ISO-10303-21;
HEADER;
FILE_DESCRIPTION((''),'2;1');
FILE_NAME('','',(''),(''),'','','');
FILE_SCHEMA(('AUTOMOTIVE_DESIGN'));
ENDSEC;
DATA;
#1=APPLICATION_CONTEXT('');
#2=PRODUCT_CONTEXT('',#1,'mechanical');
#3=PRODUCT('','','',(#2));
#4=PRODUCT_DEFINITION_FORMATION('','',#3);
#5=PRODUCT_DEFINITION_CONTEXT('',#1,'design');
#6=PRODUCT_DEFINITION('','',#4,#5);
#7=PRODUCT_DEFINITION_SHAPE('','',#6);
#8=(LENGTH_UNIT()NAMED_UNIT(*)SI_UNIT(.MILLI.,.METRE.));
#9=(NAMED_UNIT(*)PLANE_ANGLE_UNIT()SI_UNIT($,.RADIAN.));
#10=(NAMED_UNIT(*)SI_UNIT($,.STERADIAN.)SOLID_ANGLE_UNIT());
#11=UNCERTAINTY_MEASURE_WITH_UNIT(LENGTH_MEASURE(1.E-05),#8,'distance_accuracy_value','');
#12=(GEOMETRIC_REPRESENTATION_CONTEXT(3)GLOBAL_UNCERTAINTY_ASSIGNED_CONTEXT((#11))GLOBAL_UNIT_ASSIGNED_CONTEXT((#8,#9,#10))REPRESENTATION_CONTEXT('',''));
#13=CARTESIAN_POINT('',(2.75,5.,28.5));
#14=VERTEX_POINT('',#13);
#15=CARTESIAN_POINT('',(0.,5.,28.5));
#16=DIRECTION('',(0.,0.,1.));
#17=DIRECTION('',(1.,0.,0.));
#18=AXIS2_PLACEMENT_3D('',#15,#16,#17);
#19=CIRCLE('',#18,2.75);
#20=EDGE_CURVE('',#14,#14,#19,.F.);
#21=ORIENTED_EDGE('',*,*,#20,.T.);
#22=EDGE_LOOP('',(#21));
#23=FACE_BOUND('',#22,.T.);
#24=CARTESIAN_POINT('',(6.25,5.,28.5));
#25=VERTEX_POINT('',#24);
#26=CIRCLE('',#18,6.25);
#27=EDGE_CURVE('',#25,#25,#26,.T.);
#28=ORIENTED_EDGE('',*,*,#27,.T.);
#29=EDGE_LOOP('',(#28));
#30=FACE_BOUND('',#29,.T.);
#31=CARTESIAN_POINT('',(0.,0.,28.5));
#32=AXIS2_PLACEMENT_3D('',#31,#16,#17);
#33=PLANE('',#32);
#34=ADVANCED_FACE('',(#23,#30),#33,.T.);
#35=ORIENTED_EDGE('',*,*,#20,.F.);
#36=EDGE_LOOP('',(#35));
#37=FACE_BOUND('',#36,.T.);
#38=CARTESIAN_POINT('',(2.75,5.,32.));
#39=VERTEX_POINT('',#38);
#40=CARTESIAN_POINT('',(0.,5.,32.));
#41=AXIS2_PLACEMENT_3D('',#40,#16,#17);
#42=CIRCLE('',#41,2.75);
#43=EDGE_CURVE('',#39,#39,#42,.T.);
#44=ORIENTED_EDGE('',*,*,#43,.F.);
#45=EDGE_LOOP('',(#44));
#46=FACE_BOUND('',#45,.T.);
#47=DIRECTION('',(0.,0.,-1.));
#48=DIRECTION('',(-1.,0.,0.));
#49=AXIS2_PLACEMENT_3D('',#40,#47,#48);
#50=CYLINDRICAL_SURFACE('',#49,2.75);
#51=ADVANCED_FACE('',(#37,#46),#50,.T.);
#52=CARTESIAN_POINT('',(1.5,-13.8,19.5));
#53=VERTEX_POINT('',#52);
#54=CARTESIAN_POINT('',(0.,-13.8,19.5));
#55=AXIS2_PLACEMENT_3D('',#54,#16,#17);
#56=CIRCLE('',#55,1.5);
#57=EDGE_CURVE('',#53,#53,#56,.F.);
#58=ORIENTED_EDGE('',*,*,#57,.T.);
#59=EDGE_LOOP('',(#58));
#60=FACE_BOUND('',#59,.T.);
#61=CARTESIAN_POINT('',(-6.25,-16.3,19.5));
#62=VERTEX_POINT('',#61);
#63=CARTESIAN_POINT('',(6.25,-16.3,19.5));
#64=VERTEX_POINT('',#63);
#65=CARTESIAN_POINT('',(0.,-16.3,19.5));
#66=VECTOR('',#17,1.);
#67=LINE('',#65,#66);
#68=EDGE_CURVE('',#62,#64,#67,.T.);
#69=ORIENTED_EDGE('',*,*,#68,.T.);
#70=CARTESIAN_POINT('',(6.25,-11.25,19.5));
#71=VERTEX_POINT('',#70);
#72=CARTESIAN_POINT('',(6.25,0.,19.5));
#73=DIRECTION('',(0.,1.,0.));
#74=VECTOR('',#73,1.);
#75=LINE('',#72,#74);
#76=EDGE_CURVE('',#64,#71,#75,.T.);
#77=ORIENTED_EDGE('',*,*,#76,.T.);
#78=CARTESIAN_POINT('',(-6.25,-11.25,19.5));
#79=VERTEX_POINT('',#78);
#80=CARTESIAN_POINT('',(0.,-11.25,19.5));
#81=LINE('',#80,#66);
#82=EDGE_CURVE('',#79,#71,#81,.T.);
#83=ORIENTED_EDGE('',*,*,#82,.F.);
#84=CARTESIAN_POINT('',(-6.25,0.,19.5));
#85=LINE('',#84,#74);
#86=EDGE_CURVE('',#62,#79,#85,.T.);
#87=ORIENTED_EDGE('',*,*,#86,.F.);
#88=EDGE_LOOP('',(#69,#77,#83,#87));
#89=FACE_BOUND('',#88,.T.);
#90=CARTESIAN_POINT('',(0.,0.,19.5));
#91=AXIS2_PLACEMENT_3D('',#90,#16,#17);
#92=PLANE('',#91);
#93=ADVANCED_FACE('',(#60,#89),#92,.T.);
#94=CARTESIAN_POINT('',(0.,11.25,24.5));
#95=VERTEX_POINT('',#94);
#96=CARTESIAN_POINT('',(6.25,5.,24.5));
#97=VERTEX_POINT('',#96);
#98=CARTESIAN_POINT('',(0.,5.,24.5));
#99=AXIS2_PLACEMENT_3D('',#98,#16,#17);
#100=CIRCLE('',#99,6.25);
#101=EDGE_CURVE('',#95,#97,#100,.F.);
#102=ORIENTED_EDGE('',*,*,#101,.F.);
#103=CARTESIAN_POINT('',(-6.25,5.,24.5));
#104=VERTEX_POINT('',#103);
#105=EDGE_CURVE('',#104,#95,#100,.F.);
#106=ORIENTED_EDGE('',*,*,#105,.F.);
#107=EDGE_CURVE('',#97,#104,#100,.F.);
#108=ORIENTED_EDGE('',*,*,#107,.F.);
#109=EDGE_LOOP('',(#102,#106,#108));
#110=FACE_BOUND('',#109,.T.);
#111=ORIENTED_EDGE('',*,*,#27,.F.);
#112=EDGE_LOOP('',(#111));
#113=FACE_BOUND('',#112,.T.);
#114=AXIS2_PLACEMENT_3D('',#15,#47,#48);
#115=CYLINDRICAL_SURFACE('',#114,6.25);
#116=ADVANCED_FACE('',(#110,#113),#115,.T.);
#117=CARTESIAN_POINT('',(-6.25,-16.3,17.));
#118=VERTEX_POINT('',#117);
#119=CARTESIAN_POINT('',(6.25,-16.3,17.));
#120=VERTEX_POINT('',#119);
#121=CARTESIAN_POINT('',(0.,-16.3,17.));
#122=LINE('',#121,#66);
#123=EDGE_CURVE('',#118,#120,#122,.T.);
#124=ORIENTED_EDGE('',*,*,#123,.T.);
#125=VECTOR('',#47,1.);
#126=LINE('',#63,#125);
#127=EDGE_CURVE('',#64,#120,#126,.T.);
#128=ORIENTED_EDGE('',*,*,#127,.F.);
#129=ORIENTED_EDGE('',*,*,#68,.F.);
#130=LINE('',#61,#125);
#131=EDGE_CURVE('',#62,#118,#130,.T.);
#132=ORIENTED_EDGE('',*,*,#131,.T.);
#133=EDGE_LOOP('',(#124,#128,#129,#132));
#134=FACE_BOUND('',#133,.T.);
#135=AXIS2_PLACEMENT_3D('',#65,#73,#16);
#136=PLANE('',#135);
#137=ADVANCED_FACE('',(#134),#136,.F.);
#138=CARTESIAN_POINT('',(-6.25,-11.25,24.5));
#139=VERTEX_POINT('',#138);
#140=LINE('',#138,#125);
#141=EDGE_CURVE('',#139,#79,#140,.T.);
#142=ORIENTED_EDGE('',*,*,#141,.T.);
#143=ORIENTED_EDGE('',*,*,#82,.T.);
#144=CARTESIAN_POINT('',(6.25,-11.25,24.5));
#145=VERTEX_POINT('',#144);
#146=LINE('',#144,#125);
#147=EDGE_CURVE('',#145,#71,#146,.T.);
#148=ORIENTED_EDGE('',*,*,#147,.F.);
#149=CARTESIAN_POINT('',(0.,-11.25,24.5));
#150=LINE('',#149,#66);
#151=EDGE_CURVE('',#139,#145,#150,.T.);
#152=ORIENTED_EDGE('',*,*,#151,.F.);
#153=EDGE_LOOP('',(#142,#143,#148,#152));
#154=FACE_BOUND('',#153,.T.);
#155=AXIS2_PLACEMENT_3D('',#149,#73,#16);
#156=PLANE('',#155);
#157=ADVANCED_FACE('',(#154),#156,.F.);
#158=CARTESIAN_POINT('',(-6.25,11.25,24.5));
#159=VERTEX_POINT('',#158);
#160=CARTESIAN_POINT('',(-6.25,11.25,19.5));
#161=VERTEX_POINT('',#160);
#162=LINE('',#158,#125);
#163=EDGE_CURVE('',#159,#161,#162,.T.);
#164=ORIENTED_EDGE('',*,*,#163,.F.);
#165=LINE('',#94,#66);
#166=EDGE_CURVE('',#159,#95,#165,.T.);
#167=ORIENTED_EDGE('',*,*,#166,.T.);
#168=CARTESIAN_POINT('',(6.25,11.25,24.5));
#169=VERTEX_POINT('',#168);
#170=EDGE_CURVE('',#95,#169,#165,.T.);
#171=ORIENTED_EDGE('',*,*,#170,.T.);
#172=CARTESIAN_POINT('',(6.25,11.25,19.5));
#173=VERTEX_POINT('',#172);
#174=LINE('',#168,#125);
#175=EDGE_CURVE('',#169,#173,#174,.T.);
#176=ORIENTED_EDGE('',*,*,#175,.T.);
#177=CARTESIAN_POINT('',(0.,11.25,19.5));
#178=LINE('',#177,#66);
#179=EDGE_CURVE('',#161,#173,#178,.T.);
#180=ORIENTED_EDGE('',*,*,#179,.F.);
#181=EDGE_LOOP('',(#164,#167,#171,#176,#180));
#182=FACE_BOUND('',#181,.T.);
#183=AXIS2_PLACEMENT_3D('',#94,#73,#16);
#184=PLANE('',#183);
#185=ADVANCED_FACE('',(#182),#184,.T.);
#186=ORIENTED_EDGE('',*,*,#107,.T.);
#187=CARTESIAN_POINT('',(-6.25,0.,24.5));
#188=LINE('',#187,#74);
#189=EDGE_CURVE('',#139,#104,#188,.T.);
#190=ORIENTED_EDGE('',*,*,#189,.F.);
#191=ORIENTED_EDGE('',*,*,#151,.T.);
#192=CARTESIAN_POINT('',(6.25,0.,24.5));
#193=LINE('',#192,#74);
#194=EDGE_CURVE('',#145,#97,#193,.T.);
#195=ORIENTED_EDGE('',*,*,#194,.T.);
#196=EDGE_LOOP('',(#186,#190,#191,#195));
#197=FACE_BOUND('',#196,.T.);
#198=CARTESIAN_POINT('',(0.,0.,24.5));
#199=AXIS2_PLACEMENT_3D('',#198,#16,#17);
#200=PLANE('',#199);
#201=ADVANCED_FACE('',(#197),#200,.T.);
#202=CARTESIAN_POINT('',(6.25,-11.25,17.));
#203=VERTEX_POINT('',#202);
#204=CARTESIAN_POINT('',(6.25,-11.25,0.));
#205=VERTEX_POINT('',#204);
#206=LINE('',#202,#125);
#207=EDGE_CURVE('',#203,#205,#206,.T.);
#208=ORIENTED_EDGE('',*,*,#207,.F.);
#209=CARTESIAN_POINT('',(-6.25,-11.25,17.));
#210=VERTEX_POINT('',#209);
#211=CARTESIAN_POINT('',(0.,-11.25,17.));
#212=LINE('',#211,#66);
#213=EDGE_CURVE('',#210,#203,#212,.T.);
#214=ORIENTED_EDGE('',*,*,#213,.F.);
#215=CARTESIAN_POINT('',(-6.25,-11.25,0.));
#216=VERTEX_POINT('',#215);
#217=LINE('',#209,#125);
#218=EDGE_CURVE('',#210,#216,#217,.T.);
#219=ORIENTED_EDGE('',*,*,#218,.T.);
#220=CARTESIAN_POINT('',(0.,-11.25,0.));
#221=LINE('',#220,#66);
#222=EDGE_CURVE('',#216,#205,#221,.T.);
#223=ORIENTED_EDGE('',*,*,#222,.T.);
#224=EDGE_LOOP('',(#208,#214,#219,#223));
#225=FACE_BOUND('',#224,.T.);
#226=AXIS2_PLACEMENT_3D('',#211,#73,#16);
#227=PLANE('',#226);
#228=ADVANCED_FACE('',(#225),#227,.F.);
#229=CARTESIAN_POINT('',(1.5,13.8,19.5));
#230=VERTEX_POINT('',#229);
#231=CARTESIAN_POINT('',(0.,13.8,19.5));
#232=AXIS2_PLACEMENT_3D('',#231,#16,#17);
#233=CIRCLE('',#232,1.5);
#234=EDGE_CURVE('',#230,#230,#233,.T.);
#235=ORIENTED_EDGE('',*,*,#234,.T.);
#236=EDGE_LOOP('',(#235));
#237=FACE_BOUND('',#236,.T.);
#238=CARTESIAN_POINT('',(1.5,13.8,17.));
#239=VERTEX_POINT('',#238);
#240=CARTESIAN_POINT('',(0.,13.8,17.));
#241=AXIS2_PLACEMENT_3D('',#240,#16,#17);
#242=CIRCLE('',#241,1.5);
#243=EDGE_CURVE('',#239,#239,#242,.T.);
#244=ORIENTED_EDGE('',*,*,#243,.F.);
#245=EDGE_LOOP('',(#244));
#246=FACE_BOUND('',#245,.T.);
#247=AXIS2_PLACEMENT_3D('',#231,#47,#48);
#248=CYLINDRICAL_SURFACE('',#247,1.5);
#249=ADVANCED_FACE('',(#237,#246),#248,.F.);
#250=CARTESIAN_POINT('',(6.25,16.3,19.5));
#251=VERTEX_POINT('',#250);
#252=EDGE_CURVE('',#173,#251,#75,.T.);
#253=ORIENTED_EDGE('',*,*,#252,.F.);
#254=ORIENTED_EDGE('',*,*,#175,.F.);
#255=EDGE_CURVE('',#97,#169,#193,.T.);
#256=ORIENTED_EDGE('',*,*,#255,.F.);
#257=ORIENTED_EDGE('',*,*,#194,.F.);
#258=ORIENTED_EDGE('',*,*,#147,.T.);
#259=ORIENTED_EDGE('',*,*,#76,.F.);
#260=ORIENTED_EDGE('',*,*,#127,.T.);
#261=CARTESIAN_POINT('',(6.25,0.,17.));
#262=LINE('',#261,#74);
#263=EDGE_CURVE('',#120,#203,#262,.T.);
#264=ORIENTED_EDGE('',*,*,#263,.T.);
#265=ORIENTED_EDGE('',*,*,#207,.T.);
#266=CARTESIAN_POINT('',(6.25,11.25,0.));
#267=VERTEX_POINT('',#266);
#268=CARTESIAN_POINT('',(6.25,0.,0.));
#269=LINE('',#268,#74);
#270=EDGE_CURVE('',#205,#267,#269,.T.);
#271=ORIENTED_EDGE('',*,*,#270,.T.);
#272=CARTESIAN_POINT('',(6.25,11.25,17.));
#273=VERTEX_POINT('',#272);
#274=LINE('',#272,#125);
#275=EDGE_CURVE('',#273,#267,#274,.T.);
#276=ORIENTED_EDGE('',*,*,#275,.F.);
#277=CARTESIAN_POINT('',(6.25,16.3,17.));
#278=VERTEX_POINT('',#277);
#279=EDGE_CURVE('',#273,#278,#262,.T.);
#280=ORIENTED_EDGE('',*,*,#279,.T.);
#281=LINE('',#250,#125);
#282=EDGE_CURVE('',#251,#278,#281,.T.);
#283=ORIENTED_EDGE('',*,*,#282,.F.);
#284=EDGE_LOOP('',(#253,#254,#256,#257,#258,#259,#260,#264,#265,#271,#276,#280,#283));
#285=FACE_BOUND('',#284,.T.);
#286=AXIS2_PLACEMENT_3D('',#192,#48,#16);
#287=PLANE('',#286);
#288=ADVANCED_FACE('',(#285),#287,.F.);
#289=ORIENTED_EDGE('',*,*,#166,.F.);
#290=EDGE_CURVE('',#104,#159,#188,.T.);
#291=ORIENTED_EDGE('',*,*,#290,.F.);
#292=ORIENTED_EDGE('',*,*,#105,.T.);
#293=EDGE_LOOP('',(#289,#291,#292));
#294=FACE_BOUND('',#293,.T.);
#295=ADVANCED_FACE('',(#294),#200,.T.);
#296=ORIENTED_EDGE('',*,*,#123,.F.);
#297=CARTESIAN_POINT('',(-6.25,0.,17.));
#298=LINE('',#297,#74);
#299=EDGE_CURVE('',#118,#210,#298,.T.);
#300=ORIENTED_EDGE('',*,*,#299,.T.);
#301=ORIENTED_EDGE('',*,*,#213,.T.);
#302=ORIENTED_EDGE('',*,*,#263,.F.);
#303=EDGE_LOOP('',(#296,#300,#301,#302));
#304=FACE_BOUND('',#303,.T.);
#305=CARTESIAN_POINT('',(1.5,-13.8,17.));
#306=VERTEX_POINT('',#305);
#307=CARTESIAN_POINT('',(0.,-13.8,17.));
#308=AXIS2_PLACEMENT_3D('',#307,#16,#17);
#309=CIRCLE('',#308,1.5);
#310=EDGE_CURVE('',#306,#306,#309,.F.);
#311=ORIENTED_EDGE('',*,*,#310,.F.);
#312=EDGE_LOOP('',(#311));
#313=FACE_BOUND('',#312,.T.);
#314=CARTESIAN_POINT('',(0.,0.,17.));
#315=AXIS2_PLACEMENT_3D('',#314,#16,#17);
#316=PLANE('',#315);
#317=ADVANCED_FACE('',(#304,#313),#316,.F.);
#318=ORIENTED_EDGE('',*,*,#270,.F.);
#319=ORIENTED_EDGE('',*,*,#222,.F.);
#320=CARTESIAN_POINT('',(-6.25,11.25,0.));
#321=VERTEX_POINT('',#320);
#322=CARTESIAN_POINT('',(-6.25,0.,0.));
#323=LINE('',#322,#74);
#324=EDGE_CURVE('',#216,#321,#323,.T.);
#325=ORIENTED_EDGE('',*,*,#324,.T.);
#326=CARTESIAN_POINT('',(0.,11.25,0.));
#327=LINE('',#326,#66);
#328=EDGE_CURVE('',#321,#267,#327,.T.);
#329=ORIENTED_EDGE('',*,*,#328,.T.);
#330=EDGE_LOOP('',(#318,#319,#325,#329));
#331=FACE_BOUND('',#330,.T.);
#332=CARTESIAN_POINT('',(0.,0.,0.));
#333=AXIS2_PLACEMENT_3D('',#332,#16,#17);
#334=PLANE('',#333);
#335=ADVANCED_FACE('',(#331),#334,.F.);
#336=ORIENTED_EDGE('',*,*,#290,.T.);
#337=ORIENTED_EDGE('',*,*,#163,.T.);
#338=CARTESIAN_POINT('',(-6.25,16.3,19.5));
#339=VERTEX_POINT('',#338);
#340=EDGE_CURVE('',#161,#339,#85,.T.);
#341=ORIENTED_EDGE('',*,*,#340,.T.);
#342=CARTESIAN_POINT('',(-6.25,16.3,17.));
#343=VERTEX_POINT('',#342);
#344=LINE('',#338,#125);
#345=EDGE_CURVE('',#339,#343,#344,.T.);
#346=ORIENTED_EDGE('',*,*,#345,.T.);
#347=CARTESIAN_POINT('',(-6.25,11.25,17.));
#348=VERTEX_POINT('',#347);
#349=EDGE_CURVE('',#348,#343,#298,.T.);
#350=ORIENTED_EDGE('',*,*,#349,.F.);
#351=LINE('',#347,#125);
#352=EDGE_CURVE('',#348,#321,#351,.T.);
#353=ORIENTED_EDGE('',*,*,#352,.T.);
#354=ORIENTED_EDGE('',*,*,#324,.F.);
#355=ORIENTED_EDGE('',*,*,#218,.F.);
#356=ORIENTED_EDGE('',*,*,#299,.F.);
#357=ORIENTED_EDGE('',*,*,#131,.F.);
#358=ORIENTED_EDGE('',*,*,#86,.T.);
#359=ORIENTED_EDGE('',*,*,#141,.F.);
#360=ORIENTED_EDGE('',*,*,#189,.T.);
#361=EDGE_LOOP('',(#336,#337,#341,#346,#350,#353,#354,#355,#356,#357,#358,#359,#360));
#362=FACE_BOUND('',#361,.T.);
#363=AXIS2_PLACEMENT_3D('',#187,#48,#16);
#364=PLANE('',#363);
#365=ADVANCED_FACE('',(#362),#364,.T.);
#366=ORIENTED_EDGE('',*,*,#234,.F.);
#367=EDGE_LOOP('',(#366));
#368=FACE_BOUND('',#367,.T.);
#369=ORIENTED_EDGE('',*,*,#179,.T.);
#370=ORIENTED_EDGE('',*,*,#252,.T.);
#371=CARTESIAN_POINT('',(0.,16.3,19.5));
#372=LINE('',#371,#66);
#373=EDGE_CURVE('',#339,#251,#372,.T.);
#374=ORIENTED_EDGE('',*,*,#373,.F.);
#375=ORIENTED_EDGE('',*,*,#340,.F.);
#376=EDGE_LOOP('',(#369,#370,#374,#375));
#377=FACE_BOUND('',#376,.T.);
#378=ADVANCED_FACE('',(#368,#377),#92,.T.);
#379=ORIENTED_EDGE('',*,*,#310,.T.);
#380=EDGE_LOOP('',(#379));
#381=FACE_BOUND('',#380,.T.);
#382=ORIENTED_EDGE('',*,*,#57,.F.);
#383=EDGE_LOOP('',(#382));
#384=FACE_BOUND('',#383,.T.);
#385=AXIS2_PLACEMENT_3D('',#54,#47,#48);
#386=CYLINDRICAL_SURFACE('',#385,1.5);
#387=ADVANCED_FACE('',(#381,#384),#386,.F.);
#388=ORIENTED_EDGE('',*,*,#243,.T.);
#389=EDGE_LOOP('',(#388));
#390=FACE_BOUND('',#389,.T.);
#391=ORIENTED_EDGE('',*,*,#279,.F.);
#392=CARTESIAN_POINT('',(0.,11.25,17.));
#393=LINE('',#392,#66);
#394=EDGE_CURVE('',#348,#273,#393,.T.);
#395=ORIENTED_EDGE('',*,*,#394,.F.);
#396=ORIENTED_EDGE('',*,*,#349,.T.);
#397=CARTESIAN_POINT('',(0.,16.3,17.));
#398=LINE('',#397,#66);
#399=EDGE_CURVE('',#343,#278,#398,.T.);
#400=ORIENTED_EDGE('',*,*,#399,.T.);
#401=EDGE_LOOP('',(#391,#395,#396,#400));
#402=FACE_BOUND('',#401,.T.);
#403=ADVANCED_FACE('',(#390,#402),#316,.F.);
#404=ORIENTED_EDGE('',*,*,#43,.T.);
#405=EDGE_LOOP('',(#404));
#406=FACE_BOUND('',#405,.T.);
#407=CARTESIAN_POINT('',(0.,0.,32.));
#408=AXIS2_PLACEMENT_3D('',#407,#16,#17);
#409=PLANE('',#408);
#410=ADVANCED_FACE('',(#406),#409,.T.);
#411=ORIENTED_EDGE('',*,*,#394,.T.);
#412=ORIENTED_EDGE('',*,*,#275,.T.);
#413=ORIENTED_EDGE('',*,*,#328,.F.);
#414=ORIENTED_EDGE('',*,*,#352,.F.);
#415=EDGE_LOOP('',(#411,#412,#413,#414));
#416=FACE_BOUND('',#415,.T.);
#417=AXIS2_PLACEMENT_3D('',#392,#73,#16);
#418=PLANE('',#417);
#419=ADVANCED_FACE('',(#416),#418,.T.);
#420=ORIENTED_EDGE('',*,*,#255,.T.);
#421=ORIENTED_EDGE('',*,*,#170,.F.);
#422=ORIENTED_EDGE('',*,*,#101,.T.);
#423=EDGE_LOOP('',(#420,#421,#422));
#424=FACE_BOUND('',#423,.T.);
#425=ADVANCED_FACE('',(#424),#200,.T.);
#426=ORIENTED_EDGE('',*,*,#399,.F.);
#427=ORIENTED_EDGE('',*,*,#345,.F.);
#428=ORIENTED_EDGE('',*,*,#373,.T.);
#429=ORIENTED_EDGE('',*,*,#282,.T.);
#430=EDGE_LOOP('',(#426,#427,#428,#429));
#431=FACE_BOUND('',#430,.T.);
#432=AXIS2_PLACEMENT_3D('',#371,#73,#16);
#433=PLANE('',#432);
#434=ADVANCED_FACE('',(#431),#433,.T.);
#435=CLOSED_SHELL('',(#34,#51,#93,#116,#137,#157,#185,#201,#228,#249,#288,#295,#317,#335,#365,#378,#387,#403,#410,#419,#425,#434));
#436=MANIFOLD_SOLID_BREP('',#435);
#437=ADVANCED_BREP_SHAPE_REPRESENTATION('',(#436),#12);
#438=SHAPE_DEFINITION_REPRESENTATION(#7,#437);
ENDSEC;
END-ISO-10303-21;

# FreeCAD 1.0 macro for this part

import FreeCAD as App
import Part
import Sketcher
from FreeCAD import Vector
Q = App.Units.Quantity


def add_polygon(sketch, points):
    """Adds a closed chain of lines whose ends are joined by coincident constraints."""
    first, n = sketch.GeometryCount, len(points)
    for a, b in zip(points, points[1:] + points[:1]):
        sketch.addGeometry(Part.LineSegment(App.Vector(*a, 0), App.Vector(*b, 0)), False)
    for i in range(n):
        sketch.addConstraint(Sketcher.Constraint("Coincident", first + i, 2, first + (i + 1) % n, 1))

doc = App.newDocument("Part")
body = doc.addObject("PartDesign::Body", "Body")

# Sketch on XY plane
sketch1 = body.newObject("Sketcher::SketchObject", "Sketch")
sketch1.AttachmentSupport = (doc.getObject("XY_Plane"), [""])
sketch1.MapMode = "FlatFace"
add_polygon(sketch1, [(-6, -11), (6, -11), (6, 11), (-6, 11)])  # lines 0-3
sketch1.addConstraint(Sketcher.Constraint("Horizontal", 0))
sketch1.addConstraint(Sketcher.Constraint("Vertical", 1))
sketch1.addConstraint(Sketcher.Constraint("Horizontal", 2))
sketch1.addConstraint(Sketcher.Constraint("Vertical", 3))
sketch1.addConstraint(Sketcher.Constraint("Symmetric", 0, 2, 2, 2, -1, 1))
sketch1.addConstraint(Sketcher.Constraint("DistanceX", 0, 1, 0, 2, Q("12.5 mm")))
sketch1.addConstraint(Sketcher.Constraint("DistanceY", 1, 1, 1, 2, Q("22.5 mm")))
pad1 = body.newObject("PartDesign::Pad", "Pad")
pad1.Profile = sketch1
pad1.Length = 24.5

# Sketch on XY plane
sketch2 = body.newObject("Sketcher::SketchObject", "Sketch001")
sketch2.AttachmentSupport = (doc.getObject("XY_Plane"), [""])
sketch2.MapMode = "FlatFace"
add_polygon(sketch2, [(-6.2, 16.3), (-6.2, 11.2), (6.2, 11.2), (6.2, 16.3)])  # lines 0-3
sketch2.addGeometry(Part.Circle(Vector(0, 13.8, 0), Vector(0, 0, 1), 1.5), False)  # 4
add_polygon(sketch2, [(-6.2, -11.2), (-6.2, -16.3), (6.2, -16.3), (6.2, -11.2)])  # lines 5-8
sketch2.addGeometry(Part.Circle(Vector(0, -13.8, 0), Vector(0, 0, 1), 1.5), False)  # 9
sketch2.addConstraint(Sketcher.Constraint("Vertical", 0))
sketch2.addConstraint(Sketcher.Constraint("Horizontal", 1))
sketch2.addConstraint(Sketcher.Constraint("Vertical", 2))
sketch2.addConstraint(Sketcher.Constraint("Horizontal", 3))
sketch2.addConstraint(Sketcher.Constraint("Vertical", 5))
sketch2.addConstraint(Sketcher.Constraint("Horizontal", 6))
sketch2.addConstraint(Sketcher.Constraint("Vertical", 7))
sketch2.addConstraint(Sketcher.Constraint("Horizontal", 8))
sketch2.addConstraint(Sketcher.Constraint("Equal", 4, 9))
sketch2.addConstraint(Sketcher.Constraint("Symmetric", 4, 3, 9, 3, -1, 1))
sketch2.addConstraint(Sketcher.Constraint("Symmetric", 2, 2, 5, 2, -1, 1))
sketch2.addConstraint(Sketcher.Constraint("Symmetric", 0, 2, 7, 2, -1, 1))
sketch2.addConstraint(Sketcher.Constraint("PointOnObject", 4, 3, -2))
sketch2.addConstraint(Sketcher.Constraint("Vertical", 3, 2, 5, 2))
sketch2.addConstraint(Sketcher.Constraint("Diameter", 4, Q("3 mm")))
sketch2.addConstraint(Sketcher.Constraint("DistanceX", 1, 1, 1, 2, Q("12.5 mm")))
sketch2.addConstraint(Sketcher.Constraint("DistanceY", 0, 2, 0, 1, Q("5.05 mm")))
sketch2.addConstraint(Sketcher.Constraint("DistanceY", -1, 1, 4, 3, Q("13.8 mm")))
sketch2.addConstraint(Sketcher.Constraint("DistanceY", -1, 1, 2, 2, Q("16.3 mm")))
pad2 = body.newObject("PartDesign::Pad", "Pad001")
pad2.Profile = sketch2
pad2.Length = 19.5

# Sketch on XY plane
sketch3 = body.newObject("Sketcher::SketchObject", "Sketch002")
sketch3.AttachmentSupport = (doc.getObject("XY_Plane"), [""])
sketch3.MapMode = "FlatFace"
add_polygon(sketch3, [(-6.2, 16.3), (-6.2, 11.2), (6.2, 11.2), (6.2, 16.3)])  # lines 0-3
sketch3.addGeometry(Part.Circle(Vector(0, 13.8, 0), Vector(0, 0, 1), 1.5), False)  # 4
add_polygon(sketch3, [(-6.2, -11.2), (-6.2, -16.3), (6.2, -16.3), (6.2, -11.2)])  # lines 5-8
sketch3.addGeometry(Part.Circle(Vector(0, -13.8, 0), Vector(0, 0, 1), 1.5), False)  # 9
sketch3.addConstraint(Sketcher.Constraint("Vertical", 0))
sketch3.addConstraint(Sketcher.Constraint("Horizontal", 1))
sketch3.addConstraint(Sketcher.Constraint("Vertical", 2))
sketch3.addConstraint(Sketcher.Constraint("Horizontal", 3))
sketch3.addConstraint(Sketcher.Constraint("Vertical", 5))
sketch3.addConstraint(Sketcher.Constraint("Horizontal", 6))
sketch3.addConstraint(Sketcher.Constraint("Vertical", 7))
sketch3.addConstraint(Sketcher.Constraint("Horizontal", 8))
sketch3.addConstraint(Sketcher.Constraint("Equal", 4, 9))
sketch3.addConstraint(Sketcher.Constraint("Symmetric", 4, 3, 9, 3, -1, 1))
sketch3.addConstraint(Sketcher.Constraint("Symmetric", 2, 2, 5, 2, -1, 1))
sketch3.addConstraint(Sketcher.Constraint("Symmetric", 0, 2, 7, 2, -1, 1))
sketch3.addConstraint(Sketcher.Constraint("PointOnObject", 4, 3, -2))
sketch3.addConstraint(Sketcher.Constraint("Vertical", 3, 2, 5, 2))
sketch3.addConstraint(Sketcher.Constraint("Diameter", 4, Q("3 mm")))
sketch3.addConstraint(Sketcher.Constraint("DistanceX", 1, 1, 1, 2, Q("12.5 mm")))
sketch3.addConstraint(Sketcher.Constraint("DistanceY", 0, 2, 0, 1, Q("5.05 mm")))
sketch3.addConstraint(Sketcher.Constraint("DistanceY", -1, 1, 4, 3, Q("13.8 mm")))
sketch3.addConstraint(Sketcher.Constraint("DistanceY", -1, 1, 2, 2, Q("16.3 mm")))
pocket1 = body.newObject("PartDesign::Pocket", "Pocket")
pocket1.Profile = sketch3
pocket1.Length = 17
pocket1.Reversed = True

# Sketch on XY plane
sketch4 = body.newObject("Sketcher::SketchObject", "Sketch003")
sketch4.AttachmentSupport = (doc.getObject("XY_Plane"), [""])
sketch4.MapMode = "FlatFace"
sketch4.addGeometry(Part.Circle(Vector(0, 5, 0), Vector(0, 0, 1), 6), False)
sketch4.addConstraint(Sketcher.Constraint("PointOnObject", 0, 3, -2))
sketch4.addConstraint(Sketcher.Constraint("Diameter", 0, Q("12.5 mm")))
sketch4.addConstraint(Sketcher.Constraint("DistanceY", -1, 1, 0, 3, Q("5 mm")))
pad3 = body.newObject("PartDesign::Pad", "Pad002")
pad3.Profile = sketch4
pad3.Length = 28.5

# Sketch on XY plane
sketch5 = body.newObject("Sketcher::SketchObject", "Sketch004")
sketch5.AttachmentSupport = (doc.getObject("XY_Plane"), [""])
sketch5.MapMode = "FlatFace"
sketch5.addGeometry(Part.Circle(Vector(0, 5, 0), Vector(0, 0, 1), 2.8), False)
sketch5.addConstraint(Sketcher.Constraint("PointOnObject", 0, 3, -2))
sketch5.addConstraint(Sketcher.Constraint("Diameter", 0, Q("5.5 mm")))
sketch5.addConstraint(Sketcher.Constraint("DistanceY", -1, 1, 0, 3, Q("5 mm")))
pad4 = body.newObject("PartDesign::Pad", "Pad003")
pad4.Profile = sketch5
pad4.Length = 32

doc.recompute()
